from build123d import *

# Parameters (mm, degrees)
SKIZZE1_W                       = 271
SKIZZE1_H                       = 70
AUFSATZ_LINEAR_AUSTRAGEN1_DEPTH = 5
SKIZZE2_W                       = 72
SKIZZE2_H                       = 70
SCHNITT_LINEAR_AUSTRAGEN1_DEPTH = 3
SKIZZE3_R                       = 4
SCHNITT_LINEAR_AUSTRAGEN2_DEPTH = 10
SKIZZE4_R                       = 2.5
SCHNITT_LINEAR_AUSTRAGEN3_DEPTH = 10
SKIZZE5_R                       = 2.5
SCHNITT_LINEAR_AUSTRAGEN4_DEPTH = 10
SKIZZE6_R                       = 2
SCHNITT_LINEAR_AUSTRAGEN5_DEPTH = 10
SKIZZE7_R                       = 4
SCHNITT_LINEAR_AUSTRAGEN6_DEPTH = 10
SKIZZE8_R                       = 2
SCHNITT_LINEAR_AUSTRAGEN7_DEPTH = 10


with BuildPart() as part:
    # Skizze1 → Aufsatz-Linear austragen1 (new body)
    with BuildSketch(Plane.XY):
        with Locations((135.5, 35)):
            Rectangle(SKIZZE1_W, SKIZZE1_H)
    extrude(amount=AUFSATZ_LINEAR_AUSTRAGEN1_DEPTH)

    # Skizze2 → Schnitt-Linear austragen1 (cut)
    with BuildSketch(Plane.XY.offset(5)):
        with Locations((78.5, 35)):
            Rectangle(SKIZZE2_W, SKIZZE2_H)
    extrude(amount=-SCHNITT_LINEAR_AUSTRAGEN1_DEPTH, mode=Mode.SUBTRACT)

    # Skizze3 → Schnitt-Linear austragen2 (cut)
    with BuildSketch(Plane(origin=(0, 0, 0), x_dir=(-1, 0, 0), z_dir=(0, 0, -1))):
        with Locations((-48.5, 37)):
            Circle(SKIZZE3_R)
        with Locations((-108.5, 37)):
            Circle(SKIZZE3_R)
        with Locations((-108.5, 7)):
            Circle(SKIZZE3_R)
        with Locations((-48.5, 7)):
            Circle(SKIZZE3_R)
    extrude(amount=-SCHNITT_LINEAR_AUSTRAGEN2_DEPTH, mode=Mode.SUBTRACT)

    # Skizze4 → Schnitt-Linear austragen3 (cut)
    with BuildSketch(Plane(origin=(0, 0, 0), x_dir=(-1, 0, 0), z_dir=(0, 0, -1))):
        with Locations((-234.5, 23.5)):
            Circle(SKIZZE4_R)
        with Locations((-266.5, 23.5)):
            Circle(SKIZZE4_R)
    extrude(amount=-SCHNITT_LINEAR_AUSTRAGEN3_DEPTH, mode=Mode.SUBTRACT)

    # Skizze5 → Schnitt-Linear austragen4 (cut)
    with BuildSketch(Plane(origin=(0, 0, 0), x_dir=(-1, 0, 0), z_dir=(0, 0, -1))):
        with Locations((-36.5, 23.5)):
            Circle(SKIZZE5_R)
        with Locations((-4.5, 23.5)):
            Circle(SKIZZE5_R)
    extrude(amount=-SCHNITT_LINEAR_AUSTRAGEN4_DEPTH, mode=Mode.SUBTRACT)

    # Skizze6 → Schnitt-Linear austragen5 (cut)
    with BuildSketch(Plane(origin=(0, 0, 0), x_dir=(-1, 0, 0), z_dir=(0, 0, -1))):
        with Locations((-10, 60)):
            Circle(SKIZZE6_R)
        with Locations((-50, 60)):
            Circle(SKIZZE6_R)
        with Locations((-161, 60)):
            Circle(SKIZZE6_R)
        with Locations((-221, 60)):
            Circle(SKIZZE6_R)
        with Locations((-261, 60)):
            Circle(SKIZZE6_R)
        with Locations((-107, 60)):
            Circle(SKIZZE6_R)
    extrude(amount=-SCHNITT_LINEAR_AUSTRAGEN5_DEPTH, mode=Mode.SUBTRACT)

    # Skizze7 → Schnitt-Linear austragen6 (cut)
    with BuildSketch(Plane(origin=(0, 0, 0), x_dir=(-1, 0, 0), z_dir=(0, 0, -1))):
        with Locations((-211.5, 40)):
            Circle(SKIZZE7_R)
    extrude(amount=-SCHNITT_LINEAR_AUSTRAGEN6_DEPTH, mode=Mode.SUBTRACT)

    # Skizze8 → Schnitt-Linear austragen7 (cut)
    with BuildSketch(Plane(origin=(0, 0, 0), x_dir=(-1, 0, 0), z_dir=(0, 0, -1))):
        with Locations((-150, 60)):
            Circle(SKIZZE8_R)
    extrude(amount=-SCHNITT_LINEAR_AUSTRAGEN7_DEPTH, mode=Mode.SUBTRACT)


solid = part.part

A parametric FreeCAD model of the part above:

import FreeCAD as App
import Part
import Sketcher
from FreeCAD import Vector

doc = App.newDocument("Part")
body = doc.addObject("PartDesign::Body", "Body")

sketch1 = body.newObject("Sketcher::SketchObject", "Sketch")
sketch1.AttachmentSupport = (doc.getObject("XY_Plane"), [""])
sketch1.MapMode = "FlatFace"
sketch1.addGeometry([
    Part.LineSegment(Vector(0, 70, 0), Vector(0, 0, 0)),
    Part.LineSegment(Vector(0, 0, 0), Vector(271, 0, 0)),
    Part.LineSegment(Vector(271, 0, 0), Vector(271, 70, 0)),
    Part.LineSegment(Vector(271, 70, 0), Vector(0, 70, 0)),
], False)
sketch1.addConstraint([
    Sketcher.Constraint("Coincident", 0, 2, 1, 1),
    Sketcher.Constraint("Coincident", 1, 2, 2, 1),
    Sketcher.Constraint("Coincident", 2, 2, 3, 1),
    Sketcher.Constraint("Coincident", 3, 2, 0, 1),
    Sketcher.Constraint("Vertical", 0),
    Sketcher.Constraint("Horizontal", 1),
    Sketcher.Constraint("Vertical", 2),
    Sketcher.Constraint("Horizontal", 3),
    Sketcher.Constraint("Coincident", 0, 2, -1, 1),
    Sketcher.Constraint("DistanceX", 1, 1, 1, 2, 271.0),
    Sketcher.Constraint("DistanceY", 0, 2, 0, 1, 70.0),
])
pad1 = body.newObject("PartDesign::Pad", "Pad")
pad1.Profile = sketch1
pad1.Length = 5

sketch2 = body.newObject("Sketcher::SketchObject", "Sketch001")
sketch2.AttachmentSupport = (doc.getObject("XY_Plane"), [""])
sketch2.MapMode = "FlatFace"
sketch2.AttachmentOffset = App.Placement(Vector(0, 0, 5), App.Rotation())
sketch2.addGeometry([
    Part.LineSegment(Vector(42, 70, 0), Vector(42, 0, 0)),
    Part.LineSegment(Vector(42, 0, 0), Vector(114, 0, 0)),
    Part.LineSegment(Vector(114, 0, 0), Vector(114, 70, 0)),
    Part.LineSegment(Vector(114, 70, 0), Vector(42, 70, 0)),
], False)
sketch2.addConstraint([
    Sketcher.Constraint("Coincident", 0, 2, 1, 1),
    Sketcher.Constraint("Coincident", 1, 2, 2, 1),
    Sketcher.Constraint("Coincident", 2, 2, 3, 1),
    Sketcher.Constraint("Coincident", 3, 2, 0, 1),
    Sketcher.Constraint("Vertical", 0),
    Sketcher.Constraint("Horizontal", 1),
    Sketcher.Constraint("Vertical", 2),
    Sketcher.Constraint("Horizontal", 3),
    Sketcher.Constraint("PointOnObject", 0, 2, -1),
    Sketcher.Constraint("DistanceX", 1, 1, 1, 2, 72.0),
    Sketcher.Constraint("DistanceY", 0, 2, 0, 1, 70.0),
    Sketcher.Constraint("DistanceX", -1, 1, 0, 2, 42.5),
])
pocket1 = body.newObject("PartDesign::Pocket", "Pocket")
pocket1.Profile = sketch2
pocket1.Length = 3

sketch3 = body.newObject("Sketcher::SketchObject", "Sketch002")
sketch3.AttachmentSupport = (doc.getObject("XY_Plane"), [""])
sketch3.MapMode = "FlatFace"
sketch3.addGeometry([
    Part.Circle(Vector(48.5, 37, 0), Vector(0, 0, 1), 4),
    Part.Circle(Vector(108.5, 37, 0), Vector(0, 0, 1), 4),
    Part.Circle(Vector(108.5, 7, 0), Vector(0, 0, 1), 4),
    Part.Circle(Vector(48.5, 7, 0), Vector(0, 0, 1), 4),
], False)
sketch3.addConstraint([
    Sketcher.Constraint("Equal", 0, 1),
    Sketcher.Constraint("Equal", 1, 2),
    Sketcher.Constraint("Equal", 2, 3),
    Sketcher.Constraint("Horizontal", 0, 3, 1, 3),
    Sketcher.Constraint("Horizontal", 2, 3, 3, 3),
    Sketcher.Constraint("Vertical", 1, 3, 2, 3),
    Sketcher.Constraint("Vertical", 0, 3, 3, 3),
    Sketcher.Constraint("Diameter", 0, 8.0),
    Sketcher.Constraint("DistanceY", -1, 1, 0, 3, 37.0),
    Sketcher.Constraint("DistanceY", -1, 1, 2, 3, 7.0),
    Sketcher.Constraint("DistanceX", 0, 3, 1, 3, 60.0),
    Sketcher.Constraint("DistanceX", -1, 1, 0, 3, 48.5),
])
pocket2 = body.newObject("PartDesign::Pocket", "Pocket001")
pocket2.Profile = sketch3
pocket2.Length = 10
pocket2.Reversed = True

sketch4 = body.newObject("Sketcher::SketchObject", "Sketch003")
sketch4.AttachmentSupport = (doc.getObject("XY_Plane"), [""])
sketch4.MapMode = "FlatFace"
sketch4.addGeometry([
    Part.Circle(Vector(234.5, 23.5, 0), Vector(0, 0, 1), 2.5),
    Part.Circle(Vector(266.5, 23.5, 0), Vector(0, 0, 1), 2.5),
], False)
sketch4.addConstraint([
    Sketcher.Constraint("Equal", 0, 1),
    Sketcher.Constraint("Horizontal", 0, 3, 1, 3),
    Sketcher.Constraint("Diameter", 0, 5.0),
    Sketcher.Constraint("DistanceX", 0, 3, 1, 3, 32.0),
    Sketcher.Constraint("DistanceX", -1, 1, 0, 3, 234.5),
    Sketcher.Constraint("DistanceY", -1, 1, 0, 3, 23.5),
])
pocket3 = body.newObject("PartDesign::Pocket", "Pocket002")
pocket3.Profile = sketch4
pocket3.Length = 10
pocket3.Reversed = True

sketch5 = body.newObject("Sketcher::SketchObject", "Sketch004")
sketch5.AttachmentSupport = (doc.getObject("XY_Plane"), [""])
sketch5.MapMode = "FlatFace"
sketch5.addGeometry([
    Part.Circle(Vector(36.5, 23.5, 0), Vector(0, 0, 1), 2.5),
    Part.Circle(Vector(4.5, 23.5, 0), Vector(0, 0, 1), 2.5),
], False)
sketch5.addConstraint([
    Sketcher.Constraint("Equal", 0, 1),
    Sketcher.Constraint("Horizontal", 0, 3, 1, 3),
    Sketcher.Constraint("Diameter", 0, 5.0),
    Sketcher.Constraint("DistanceX", 1, 3, 0, 3, 32.0),
    Sketcher.Constraint("DistanceX", -1, 1, 0, 3, 36.5),
    Sketcher.Constraint("DistanceY", -1, 1, 0, 3, 23.5),
])
pocket4 = body.newObject("PartDesign::Pocket", "Pocket003")
pocket4.Profile = sketch5
pocket4.Length = 10
pocket4.Reversed = True

sketch6 = body.newObject("Sketcher::SketchObject", "Sketch005")
sketch6.AttachmentSupport = (doc.getObject("XY_Plane"), [""])
sketch6.MapMode = "FlatFace"
sketch6.addGeometry([
    Part.Circle(Vector(10, 60, 0), Vector(0, 0, 1), 2),
    Part.Circle(Vector(50, 60, 0), Vector(0, 0, 1), 2),
    Part.Circle(Vector(161, 60, 0), Vector(0, 0, 1), 2),
    Part.Circle(Vector(221, 60, 0), Vector(0, 0, 1), 2),
    Part.Circle(Vector(261, 60, 0), Vector(0, 0, 1), 2),
    Part.Circle(Vector(107, 60, 0), Vector(0, 0, 1), 2),
], False)
sketch6.addConstraint([
    Sketcher.Constraint("Equal", 0, 1),
    Sketcher.Constraint("Equal", 1, 2),
    Sketcher.Constraint("Equal", 2, 3),
    Sketcher.Constraint("Equal", 3, 4),
    Sketcher.Constraint("Equal", 4, 5),
    Sketcher.Constraint("Horizontal", 0, 3, 1, 3),
    Sketcher.Constraint("Horizontal", 1, 3, 2, 3),
    Sketcher.Constraint("Horizontal", 2, 3, 3, 3),
    Sketcher.Constraint("Horizontal", 3, 3, 4, 3),
    Sketcher.Constraint("Horizontal", 4, 3, 5, 3),
    Sketcher.Constraint("Diameter", 0, 4.0),
    Sketcher.Constraint("DistanceX", -1, 1, 0, 3, 10.0),
    Sketcher.Constraint("DistanceY", -1, 1, 0, 3, 60.0),
    Sketcher.Constraint("DistanceX", -1, 1, 1, 3, 50.0),
    Sketcher.Constraint("DistanceX", -1, 1, 2, 3, 161.0),
    Sketcher.Constraint("DistanceX", -1, 1, 3, 3, 221.0),
    Sketcher.Constraint("DistanceX", -1, 1, 4, 3, 261.0),
    Sketcher.Constraint("DistanceX", -1, 1, 5, 3, 107.0),
])
pocket5 = body.newObject("PartDesign::Pocket", "Pocket004")
pocket5.Profile = sketch6
pocket5.Length = 10
pocket5.Reversed = True

sketch7 = body.newObject("Sketcher::SketchObject", "Sketch006")
sketch7.AttachmentSupport = (doc.getObject("XY_Plane"), [""])
sketch7.MapMode = "FlatFace"
sketch7.addGeometry(Part.Circle(Vector(211.5, 40, 0), Vector(0, 0, 1), 4), False)
sketch7.addConstraint([
    Sketcher.Constraint("Diameter", 0, 8.0),
    Sketcher.Constraint("DistanceY", -1, 1, 0, 3, 40.0),
    Sketcher.Constraint("DistanceX", -1, 1, 0, 3, 211.5),
])
pocket6 = body.newObject("PartDesign::Pocket", "Pocket005")
pocket6.Profile = sketch7
pocket6.Length = 10
pocket6.Reversed = True

sketch8 = body.newObject("Sketcher::SketchObject", "Sketch007")
sketch8.AttachmentSupport = (doc.getObject("XY_Plane"), [""])
sketch8.MapMode = "FlatFace"
sketch8.addGeometry(Part.Circle(Vector(150, 60, 0), Vector(0, 0, 1), 2), False)
sketch8.addConstraint([
    Sketcher.Constraint("Diameter", 0, 4.0),
    Sketcher.Constraint("DistanceX", -1, 1, 0, 3, 150.0),
    Sketcher.Constraint("DistanceY", -1, 1, 0, 3, 60.0),
])
pocket7 = body.newObject("PartDesign::Pocket", "Pocket006")
pocket7.Profile = sketch8
pocket7.Length = 10
pocket7.Reversed = True

doc.recompute()
